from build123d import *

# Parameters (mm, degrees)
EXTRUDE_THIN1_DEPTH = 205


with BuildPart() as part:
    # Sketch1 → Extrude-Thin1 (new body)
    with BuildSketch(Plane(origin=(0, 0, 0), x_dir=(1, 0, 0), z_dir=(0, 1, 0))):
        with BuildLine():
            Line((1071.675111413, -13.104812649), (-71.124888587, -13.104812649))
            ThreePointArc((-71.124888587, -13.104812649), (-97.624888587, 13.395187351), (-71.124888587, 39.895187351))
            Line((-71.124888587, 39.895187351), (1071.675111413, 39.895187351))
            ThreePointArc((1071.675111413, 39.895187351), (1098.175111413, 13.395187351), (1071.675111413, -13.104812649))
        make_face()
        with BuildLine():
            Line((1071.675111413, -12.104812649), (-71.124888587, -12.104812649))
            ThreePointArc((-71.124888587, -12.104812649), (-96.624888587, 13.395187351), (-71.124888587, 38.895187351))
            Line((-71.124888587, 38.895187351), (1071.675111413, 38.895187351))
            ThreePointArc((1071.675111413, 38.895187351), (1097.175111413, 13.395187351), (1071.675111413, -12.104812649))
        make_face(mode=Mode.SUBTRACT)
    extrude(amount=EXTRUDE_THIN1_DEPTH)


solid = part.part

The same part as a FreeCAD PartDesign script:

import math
import FreeCAD as App
import Part
import Sketcher
from FreeCAD import Vector

doc = App.newDocument("Part")
body = doc.addObject("PartDesign::Body", "Body")

sketch1 = doc.addObject("Sketcher::SketchObject", "Sketch")
body.addObject(sketch1)
sketch1.AttachmentSupport = (doc.XZ_Plane, [""])
sketch1.MapMode = "FlatFace"
sketch1.addGeometry(Part.LineSegment(Vector(-71.124889, 13.104813, 0), Vector(1071.675111, 13.104813, 0)), False)
sketch1.addGeometry(Part.ArcOfCircle(Part.Circle(Vector(1071.675111, -13.395187, 0), Vector(0, 0, 1), 26.5), math.radians(-90), math.radians(90)), False)
sketch1.addGeometry(Part.LineSegment(Vector(1071.675111, -39.895187, 0), Vector(-71.124889, -39.895187, 0)), False)
sketch1.addGeometry(Part.ArcOfCircle(Part.Circle(Vector(-71.124889, -13.395187, 0), Vector(0, 0, 1), 26.5), math.radians(90), math.radians(270)), False)
sketch1.addGeometry(Part.LineSegment(Vector(1071.675111, 12.104813, 0), Vector(-71.124889, 12.104813, 0)), False)
sketch1.addGeometry(Part.ArcOfCircle(Part.Circle(Vector(-71.124889, -13.395187, 0), Vector(0, 0, 1), 25.5), math.radians(90), math.radians(270)), False)
sketch1.addGeometry(Part.LineSegment(Vector(-71.124889, -38.895187, 0), Vector(1071.675111, -38.895187, 0)), False)
sketch1.addGeometry(Part.ArcOfCircle(Part.Circle(Vector(1071.675111, -13.395187, 0), Vector(0, 0, 1), 25.5), math.radians(-90), math.radians(90)), False)
sketch1.addConstraint(Sketcher.Constraint("Tangent", 0, 2, 1, 2))
sketch1.addConstraint(Sketcher.Constraint("Tangent", 1, 1, 2, 1))
sketch1.addConstraint(Sketcher.Constraint("Tangent", 2, 2, 3, 2))
sketch1.addConstraint(Sketcher.Constraint("Tangent", 3, 1, 0, 1))
sketch1.addConstraint(Sketcher.Constraint("Tangent", 4, 2, 5, 1))
sketch1.addConstraint(Sketcher.Constraint("Tangent", 5, 2, 6, 1))
sketch1.addConstraint(Sketcher.Constraint("Tangent", 6, 2, 7, 1))
sketch1.addConstraint(Sketcher.Constraint("Tangent", 7, 2, 4, 1))
sketch1.addConstraint(Sketcher.Constraint("Horizontal", 0))
sketch1.addConstraint(Sketcher.Constraint("Horizontal", 2))
sketch1.addConstraint(Sketcher.Constraint("Horizontal", 4))
sketch1.addConstraint(Sketcher.Constraint("Horizontal", 6))
sketch1.addConstraint(Sketcher.Constraint("Coincident", 5, 3, 3, 3))
sketch1.addConstraint(Sketcher.Constraint("Vertical", 7, 3, 0, 2))
sketch1.addConstraint(Sketcher.Constraint("Radius", 1, 26.5))
sketch1.addConstraint(Sketcher.Constraint("Radius", 5, 25.5))
sketch1.addConstraint(Sketcher.Constraint("DistanceX", 0, 1, 0, 2, 1142.8))
sketch1.addConstraint(Sketcher.Constraint("DistanceX", -1, 1, 1, 3, 1071.675111))
sketch1.addConstraint(Sketcher.Constraint("DistanceY", 1, 3, -1, 1, 13.395187))
pad1 = doc.addObject("PartDesign::Pad", "Pad")
body.addObject(pad1)
pad1.Profile = sketch1
pad1.Length = 205
pad1.Reversed = True

doc.recompute()
